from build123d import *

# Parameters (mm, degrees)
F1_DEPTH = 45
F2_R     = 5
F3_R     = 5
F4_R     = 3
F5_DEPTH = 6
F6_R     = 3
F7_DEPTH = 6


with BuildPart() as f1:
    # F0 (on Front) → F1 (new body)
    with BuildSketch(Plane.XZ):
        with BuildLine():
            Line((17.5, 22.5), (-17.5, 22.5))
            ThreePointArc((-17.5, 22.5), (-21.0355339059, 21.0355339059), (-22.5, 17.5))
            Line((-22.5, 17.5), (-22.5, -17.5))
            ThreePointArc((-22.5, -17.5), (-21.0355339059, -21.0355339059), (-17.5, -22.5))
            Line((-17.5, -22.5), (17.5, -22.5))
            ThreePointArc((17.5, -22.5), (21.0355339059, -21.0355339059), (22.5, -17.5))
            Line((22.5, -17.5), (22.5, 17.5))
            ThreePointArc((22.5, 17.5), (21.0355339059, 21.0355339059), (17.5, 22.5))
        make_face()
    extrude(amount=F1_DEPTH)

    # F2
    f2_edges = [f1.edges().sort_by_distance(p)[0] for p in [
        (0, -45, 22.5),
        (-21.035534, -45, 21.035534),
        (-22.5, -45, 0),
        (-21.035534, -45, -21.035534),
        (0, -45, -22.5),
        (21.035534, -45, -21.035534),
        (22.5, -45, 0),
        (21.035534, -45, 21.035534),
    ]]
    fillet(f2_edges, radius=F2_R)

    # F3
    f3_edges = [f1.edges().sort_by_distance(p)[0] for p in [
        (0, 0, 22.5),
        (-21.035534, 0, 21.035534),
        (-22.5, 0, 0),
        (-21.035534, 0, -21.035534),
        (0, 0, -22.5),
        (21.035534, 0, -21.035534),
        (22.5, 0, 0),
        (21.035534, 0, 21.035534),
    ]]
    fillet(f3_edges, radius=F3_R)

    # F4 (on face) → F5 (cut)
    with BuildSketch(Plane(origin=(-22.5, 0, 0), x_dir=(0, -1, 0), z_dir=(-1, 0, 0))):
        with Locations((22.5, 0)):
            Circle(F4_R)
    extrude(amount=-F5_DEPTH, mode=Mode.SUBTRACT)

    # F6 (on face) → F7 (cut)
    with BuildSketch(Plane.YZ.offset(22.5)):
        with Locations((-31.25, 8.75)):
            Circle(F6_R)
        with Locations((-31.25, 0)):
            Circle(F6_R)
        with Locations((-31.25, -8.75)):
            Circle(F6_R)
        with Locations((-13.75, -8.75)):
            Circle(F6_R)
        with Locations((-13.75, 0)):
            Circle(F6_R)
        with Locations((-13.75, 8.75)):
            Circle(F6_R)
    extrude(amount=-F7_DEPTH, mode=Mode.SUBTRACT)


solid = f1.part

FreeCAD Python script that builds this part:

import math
import FreeCAD as App
import Part
import Sketcher
from FreeCAD import Vector


def edges_at(feature, points):
    """Names of the edges that pass closest to the given points."""
    edges = feature.Shape.Edges
    near = lambda p: min(range(len(edges)), key=lambda i: edges[i].distToShape(Part.Vertex(*p))[0])
    return sorted({f"Edge{near(p) + 1}" for p in points})

doc = App.newDocument("Part")
params = doc.addObject("Spreadsheet::Sheet", "Params")
for row, (alias, value) in enumerate([
    ("sketch1_radius", "5 mm"),
    ("sketch1_width", "35 mm"),
    ("pad1_length", "45 mm"),
    ("fillet_radius", "5 mm"),
    ("fillet2_radius", "5 mm"),
    ("sketch2_diameter", "6 mm"),
    ("pocket1_length", "6 mm"),
    ("sketch3_diameter", "6 mm"),
    ("pocket2_length", "6 mm"),
], start=1):
    params.set(f"A{row}", alias)
    params.set(f"B{row}", "=" + value)
    params.setAlias(f"B{row}", alias)

body = doc.addObject("PartDesign::Body", "Body")

sketch1 = body.newObject("Sketcher::SketchObject", "Sketch")
sketch1.AttachmentSupport = (doc.getObject("XZ_Plane"), [""])
sketch1.MapMode = "FlatFace"
sketch1.addGeometry([
    Part.LineSegment(Vector(18, 22, 0), Vector(-18, 22, 0)),
    Part.ArcOfCircle(Part.Circle(Vector(-18, 18, 0), Vector(0, 0, 1), 5), math.radians(90), math.radians(180)),
    Part.LineSegment(Vector(-22, 18, 0), Vector(-22, -18, 0)),
    Part.ArcOfCircle(Part.Circle(Vector(-18, -18, 0), Vector(0, 0, 1), 5), math.radians(180), math.radians(270)),
    Part.LineSegment(Vector(-18, -22, 0), Vector(18, -22, 0)),
    Part.ArcOfCircle(Part.Circle(Vector(18, -18, 0), Vector(0, 0, 1), 5), math.radians(-90), math.radians(0)),
    Part.LineSegment(Vector(22, -18, 0), Vector(22, 18, 0)),
    Part.ArcOfCircle(Part.Circle(Vector(18, 18, 0), Vector(0, 0, 1), 5), math.radians(0), math.radians(90)),
], False)
sketch1.addConstraint([
    Sketcher.Constraint("Tangent", 0, 2, 1, 1),
    Sketcher.Constraint("Tangent", 1, 2, 2, 1),
    Sketcher.Constraint("Tangent", 2, 2, 3, 1),
    Sketcher.Constraint("Tangent", 3, 2, 4, 1),
    Sketcher.Constraint("Tangent", 4, 2, 5, 1),
    Sketcher.Constraint("Tangent", 5, 2, 6, 1),
    Sketcher.Constraint("Tangent", 6, 2, 7, 1),
    Sketcher.Constraint("Tangent", 7, 2, 0, 1),
    Sketcher.Constraint("Horizontal", 0),
    Sketcher.Constraint("Vertical", 2),
    Sketcher.Constraint("Horizontal", 4),
    Sketcher.Constraint("Vertical", 6),
    Sketcher.Constraint("Equal", 1, 3),
    Sketcher.Constraint("Equal", 3, 5),
    Sketcher.Constraint("Equal", 5, 7),
    Sketcher.Constraint("Symmetric", 1, 3, 5, 3, -1, 1),
    Sketcher.Constraint("Equal", 4, 2),
    Sketcher.Constraint("Radius", 1, 5.0),
    Sketcher.Constraint("DistanceX", 0, 2, 0, 1, 35.0),
])
sketch1.setExpression("Constraints[17]", "Params.sketch1_radius")
sketch1.setExpression("Constraints[18]", "Params.sketch1_width")
pad1 = body.newObject("PartDesign::Pad", "Pad")
pad1.Profile = sketch1
pad1.setExpression("Length", "Params.pad1_length")
doc.recompute()

fillet = body.newObject("PartDesign::Fillet", "Fillet")
fillet.Base = (pad1, edges_at(pad1, [
    (0, -45, 22.5),
    (-21.036, -45, 21.036),
    (-22.5, -45, 0),
    (-21.036, -45, -21.036),
    (0, -45, -22.5),
    (21.036, -45, -21.036),
    (22.5, -45, 0),
    (21.036, -45, 21.036),
]))
fillet.setExpression("Radius", "Params.fillet_radius")
doc.recompute()

fillet2 = body.newObject("PartDesign::Fillet", "Fillet001")
fillet2.Base = (fillet, edges_at(fillet, [
    (0, 0, 22.5),
    (-21.036, 0, 21.036),
    (-22.5, 0, 0),
    (-21.036, 0, -21.036),
    (0, 0, -22.5),
    (21.036, 0, -21.036),
    (22.5, 0, 0),
    (21.036, 0, 21.036),
]))
fillet2.setExpression("Radius", "Params.fillet2_radius")

sketch2 = body.newObject("Sketcher::SketchObject", "Sketch001")
sketch2.AttachmentSupport = (doc.getObject("YZ_Plane"), [""])
sketch2.MapMode = "FlatFace"
sketch2.AttachmentOffset = App.Placement(Vector(0, 0, -22.5), App.Rotation())
sketch2.addGeometry(Part.Circle(Vector(-22.5, 0, 0), Vector(0, 0, 1), 3), False)
sketch2.addConstraint([
    Sketcher.Constraint("PointOnObject", 0, 3, -1),
    Sketcher.Constraint("Diameter", 0, 6.0),
    Sketcher.Constraint("DistanceX", 0, 3, -1, 1, 22.5),
])
sketch2.setExpression("Constraints[1]", "Params.sketch2_diameter")
pocket1 = body.newObject("PartDesign::Pocket", "Pocket")
pocket1.Profile = sketch2
pocket1.setExpression("Length", "Params.pocket1_length")
pocket1.Reversed = True

sketch3 = body.newObject("Sketcher::SketchObject", "Sketch002")
sketch3.AttachmentSupport = (doc.getObject("YZ_Plane"), [""])
sketch3.MapMode = "FlatFace"
sketch3.AttachmentOffset = App.Placement(Vector(0, 0, 22.5), App.Rotation())
sketch3.addGeometry([
    Part.Circle(Vector(-31.2, 8.8, 0), Vector(0, 0, 1), 3),
    Part.Circle(Vector(-31.2, 0, 0), Vector(0, 0, 1), 3),
    Part.Circle(Vector(-31.2, -8.8, 0), Vector(0, 0, 1), 3),
    Part.Circle(Vector(-13.8, -8.8, 0), Vector(0, 0, 1), 3),
    Part.Circle(Vector(-13.8, 0, 0), Vector(0, 0, 1), 3),
    Part.Circle(Vector(-13.8, 8.8, 0), Vector(0, 0, 1), 3),
], False)
sketch3.addConstraint([
    Sketcher.Constraint("Equal", 0, 1),
    Sketcher.Constraint("Equal", 1, 2),
    Sketcher.Constraint("Equal", 2, 3),
    Sketcher.Constraint("Equal", 3, 4),
    Sketcher.Constraint("Equal", 4, 5),
    Sketcher.Constraint("Symmetric", 0, 3, 2, 3, -1),
    Sketcher.Constraint("Symmetric", 3, 3, 5, 3, -1),
    Sketcher.Constraint("PointOnObject", 1, 3, -1),
    Sketcher.Constraint("PointOnObject", 4, 3, -1),
    Sketcher.Constraint("Horizontal", 2, 3, 3, 3),
    Sketcher.Constraint("Vertical", 0, 3, 1, 3),
    Sketcher.Constraint("Vertical", 3, 3, 4, 3),
    Sketcher.Constraint("Diameter", 0, 6.0),
    Sketcher.Constraint("DistanceY", 2, 3, 0, 3, 17.5),
    Sketcher.Constraint("DistanceX", 2, 3, 3, 3, 17.5),
    Sketcher.Constraint("DistanceX", 0, 3, -1, 1, 31.25),
])
sketch3.setExpression("Constraints[12]", "Params.sketch3_diameter")
pocket2 = body.newObject("PartDesign::Pocket", "Pocket001")
pocket2.Profile = sketch3
pocket2.setExpression("Length", "Params.pocket2_length")

doc.recompute()
